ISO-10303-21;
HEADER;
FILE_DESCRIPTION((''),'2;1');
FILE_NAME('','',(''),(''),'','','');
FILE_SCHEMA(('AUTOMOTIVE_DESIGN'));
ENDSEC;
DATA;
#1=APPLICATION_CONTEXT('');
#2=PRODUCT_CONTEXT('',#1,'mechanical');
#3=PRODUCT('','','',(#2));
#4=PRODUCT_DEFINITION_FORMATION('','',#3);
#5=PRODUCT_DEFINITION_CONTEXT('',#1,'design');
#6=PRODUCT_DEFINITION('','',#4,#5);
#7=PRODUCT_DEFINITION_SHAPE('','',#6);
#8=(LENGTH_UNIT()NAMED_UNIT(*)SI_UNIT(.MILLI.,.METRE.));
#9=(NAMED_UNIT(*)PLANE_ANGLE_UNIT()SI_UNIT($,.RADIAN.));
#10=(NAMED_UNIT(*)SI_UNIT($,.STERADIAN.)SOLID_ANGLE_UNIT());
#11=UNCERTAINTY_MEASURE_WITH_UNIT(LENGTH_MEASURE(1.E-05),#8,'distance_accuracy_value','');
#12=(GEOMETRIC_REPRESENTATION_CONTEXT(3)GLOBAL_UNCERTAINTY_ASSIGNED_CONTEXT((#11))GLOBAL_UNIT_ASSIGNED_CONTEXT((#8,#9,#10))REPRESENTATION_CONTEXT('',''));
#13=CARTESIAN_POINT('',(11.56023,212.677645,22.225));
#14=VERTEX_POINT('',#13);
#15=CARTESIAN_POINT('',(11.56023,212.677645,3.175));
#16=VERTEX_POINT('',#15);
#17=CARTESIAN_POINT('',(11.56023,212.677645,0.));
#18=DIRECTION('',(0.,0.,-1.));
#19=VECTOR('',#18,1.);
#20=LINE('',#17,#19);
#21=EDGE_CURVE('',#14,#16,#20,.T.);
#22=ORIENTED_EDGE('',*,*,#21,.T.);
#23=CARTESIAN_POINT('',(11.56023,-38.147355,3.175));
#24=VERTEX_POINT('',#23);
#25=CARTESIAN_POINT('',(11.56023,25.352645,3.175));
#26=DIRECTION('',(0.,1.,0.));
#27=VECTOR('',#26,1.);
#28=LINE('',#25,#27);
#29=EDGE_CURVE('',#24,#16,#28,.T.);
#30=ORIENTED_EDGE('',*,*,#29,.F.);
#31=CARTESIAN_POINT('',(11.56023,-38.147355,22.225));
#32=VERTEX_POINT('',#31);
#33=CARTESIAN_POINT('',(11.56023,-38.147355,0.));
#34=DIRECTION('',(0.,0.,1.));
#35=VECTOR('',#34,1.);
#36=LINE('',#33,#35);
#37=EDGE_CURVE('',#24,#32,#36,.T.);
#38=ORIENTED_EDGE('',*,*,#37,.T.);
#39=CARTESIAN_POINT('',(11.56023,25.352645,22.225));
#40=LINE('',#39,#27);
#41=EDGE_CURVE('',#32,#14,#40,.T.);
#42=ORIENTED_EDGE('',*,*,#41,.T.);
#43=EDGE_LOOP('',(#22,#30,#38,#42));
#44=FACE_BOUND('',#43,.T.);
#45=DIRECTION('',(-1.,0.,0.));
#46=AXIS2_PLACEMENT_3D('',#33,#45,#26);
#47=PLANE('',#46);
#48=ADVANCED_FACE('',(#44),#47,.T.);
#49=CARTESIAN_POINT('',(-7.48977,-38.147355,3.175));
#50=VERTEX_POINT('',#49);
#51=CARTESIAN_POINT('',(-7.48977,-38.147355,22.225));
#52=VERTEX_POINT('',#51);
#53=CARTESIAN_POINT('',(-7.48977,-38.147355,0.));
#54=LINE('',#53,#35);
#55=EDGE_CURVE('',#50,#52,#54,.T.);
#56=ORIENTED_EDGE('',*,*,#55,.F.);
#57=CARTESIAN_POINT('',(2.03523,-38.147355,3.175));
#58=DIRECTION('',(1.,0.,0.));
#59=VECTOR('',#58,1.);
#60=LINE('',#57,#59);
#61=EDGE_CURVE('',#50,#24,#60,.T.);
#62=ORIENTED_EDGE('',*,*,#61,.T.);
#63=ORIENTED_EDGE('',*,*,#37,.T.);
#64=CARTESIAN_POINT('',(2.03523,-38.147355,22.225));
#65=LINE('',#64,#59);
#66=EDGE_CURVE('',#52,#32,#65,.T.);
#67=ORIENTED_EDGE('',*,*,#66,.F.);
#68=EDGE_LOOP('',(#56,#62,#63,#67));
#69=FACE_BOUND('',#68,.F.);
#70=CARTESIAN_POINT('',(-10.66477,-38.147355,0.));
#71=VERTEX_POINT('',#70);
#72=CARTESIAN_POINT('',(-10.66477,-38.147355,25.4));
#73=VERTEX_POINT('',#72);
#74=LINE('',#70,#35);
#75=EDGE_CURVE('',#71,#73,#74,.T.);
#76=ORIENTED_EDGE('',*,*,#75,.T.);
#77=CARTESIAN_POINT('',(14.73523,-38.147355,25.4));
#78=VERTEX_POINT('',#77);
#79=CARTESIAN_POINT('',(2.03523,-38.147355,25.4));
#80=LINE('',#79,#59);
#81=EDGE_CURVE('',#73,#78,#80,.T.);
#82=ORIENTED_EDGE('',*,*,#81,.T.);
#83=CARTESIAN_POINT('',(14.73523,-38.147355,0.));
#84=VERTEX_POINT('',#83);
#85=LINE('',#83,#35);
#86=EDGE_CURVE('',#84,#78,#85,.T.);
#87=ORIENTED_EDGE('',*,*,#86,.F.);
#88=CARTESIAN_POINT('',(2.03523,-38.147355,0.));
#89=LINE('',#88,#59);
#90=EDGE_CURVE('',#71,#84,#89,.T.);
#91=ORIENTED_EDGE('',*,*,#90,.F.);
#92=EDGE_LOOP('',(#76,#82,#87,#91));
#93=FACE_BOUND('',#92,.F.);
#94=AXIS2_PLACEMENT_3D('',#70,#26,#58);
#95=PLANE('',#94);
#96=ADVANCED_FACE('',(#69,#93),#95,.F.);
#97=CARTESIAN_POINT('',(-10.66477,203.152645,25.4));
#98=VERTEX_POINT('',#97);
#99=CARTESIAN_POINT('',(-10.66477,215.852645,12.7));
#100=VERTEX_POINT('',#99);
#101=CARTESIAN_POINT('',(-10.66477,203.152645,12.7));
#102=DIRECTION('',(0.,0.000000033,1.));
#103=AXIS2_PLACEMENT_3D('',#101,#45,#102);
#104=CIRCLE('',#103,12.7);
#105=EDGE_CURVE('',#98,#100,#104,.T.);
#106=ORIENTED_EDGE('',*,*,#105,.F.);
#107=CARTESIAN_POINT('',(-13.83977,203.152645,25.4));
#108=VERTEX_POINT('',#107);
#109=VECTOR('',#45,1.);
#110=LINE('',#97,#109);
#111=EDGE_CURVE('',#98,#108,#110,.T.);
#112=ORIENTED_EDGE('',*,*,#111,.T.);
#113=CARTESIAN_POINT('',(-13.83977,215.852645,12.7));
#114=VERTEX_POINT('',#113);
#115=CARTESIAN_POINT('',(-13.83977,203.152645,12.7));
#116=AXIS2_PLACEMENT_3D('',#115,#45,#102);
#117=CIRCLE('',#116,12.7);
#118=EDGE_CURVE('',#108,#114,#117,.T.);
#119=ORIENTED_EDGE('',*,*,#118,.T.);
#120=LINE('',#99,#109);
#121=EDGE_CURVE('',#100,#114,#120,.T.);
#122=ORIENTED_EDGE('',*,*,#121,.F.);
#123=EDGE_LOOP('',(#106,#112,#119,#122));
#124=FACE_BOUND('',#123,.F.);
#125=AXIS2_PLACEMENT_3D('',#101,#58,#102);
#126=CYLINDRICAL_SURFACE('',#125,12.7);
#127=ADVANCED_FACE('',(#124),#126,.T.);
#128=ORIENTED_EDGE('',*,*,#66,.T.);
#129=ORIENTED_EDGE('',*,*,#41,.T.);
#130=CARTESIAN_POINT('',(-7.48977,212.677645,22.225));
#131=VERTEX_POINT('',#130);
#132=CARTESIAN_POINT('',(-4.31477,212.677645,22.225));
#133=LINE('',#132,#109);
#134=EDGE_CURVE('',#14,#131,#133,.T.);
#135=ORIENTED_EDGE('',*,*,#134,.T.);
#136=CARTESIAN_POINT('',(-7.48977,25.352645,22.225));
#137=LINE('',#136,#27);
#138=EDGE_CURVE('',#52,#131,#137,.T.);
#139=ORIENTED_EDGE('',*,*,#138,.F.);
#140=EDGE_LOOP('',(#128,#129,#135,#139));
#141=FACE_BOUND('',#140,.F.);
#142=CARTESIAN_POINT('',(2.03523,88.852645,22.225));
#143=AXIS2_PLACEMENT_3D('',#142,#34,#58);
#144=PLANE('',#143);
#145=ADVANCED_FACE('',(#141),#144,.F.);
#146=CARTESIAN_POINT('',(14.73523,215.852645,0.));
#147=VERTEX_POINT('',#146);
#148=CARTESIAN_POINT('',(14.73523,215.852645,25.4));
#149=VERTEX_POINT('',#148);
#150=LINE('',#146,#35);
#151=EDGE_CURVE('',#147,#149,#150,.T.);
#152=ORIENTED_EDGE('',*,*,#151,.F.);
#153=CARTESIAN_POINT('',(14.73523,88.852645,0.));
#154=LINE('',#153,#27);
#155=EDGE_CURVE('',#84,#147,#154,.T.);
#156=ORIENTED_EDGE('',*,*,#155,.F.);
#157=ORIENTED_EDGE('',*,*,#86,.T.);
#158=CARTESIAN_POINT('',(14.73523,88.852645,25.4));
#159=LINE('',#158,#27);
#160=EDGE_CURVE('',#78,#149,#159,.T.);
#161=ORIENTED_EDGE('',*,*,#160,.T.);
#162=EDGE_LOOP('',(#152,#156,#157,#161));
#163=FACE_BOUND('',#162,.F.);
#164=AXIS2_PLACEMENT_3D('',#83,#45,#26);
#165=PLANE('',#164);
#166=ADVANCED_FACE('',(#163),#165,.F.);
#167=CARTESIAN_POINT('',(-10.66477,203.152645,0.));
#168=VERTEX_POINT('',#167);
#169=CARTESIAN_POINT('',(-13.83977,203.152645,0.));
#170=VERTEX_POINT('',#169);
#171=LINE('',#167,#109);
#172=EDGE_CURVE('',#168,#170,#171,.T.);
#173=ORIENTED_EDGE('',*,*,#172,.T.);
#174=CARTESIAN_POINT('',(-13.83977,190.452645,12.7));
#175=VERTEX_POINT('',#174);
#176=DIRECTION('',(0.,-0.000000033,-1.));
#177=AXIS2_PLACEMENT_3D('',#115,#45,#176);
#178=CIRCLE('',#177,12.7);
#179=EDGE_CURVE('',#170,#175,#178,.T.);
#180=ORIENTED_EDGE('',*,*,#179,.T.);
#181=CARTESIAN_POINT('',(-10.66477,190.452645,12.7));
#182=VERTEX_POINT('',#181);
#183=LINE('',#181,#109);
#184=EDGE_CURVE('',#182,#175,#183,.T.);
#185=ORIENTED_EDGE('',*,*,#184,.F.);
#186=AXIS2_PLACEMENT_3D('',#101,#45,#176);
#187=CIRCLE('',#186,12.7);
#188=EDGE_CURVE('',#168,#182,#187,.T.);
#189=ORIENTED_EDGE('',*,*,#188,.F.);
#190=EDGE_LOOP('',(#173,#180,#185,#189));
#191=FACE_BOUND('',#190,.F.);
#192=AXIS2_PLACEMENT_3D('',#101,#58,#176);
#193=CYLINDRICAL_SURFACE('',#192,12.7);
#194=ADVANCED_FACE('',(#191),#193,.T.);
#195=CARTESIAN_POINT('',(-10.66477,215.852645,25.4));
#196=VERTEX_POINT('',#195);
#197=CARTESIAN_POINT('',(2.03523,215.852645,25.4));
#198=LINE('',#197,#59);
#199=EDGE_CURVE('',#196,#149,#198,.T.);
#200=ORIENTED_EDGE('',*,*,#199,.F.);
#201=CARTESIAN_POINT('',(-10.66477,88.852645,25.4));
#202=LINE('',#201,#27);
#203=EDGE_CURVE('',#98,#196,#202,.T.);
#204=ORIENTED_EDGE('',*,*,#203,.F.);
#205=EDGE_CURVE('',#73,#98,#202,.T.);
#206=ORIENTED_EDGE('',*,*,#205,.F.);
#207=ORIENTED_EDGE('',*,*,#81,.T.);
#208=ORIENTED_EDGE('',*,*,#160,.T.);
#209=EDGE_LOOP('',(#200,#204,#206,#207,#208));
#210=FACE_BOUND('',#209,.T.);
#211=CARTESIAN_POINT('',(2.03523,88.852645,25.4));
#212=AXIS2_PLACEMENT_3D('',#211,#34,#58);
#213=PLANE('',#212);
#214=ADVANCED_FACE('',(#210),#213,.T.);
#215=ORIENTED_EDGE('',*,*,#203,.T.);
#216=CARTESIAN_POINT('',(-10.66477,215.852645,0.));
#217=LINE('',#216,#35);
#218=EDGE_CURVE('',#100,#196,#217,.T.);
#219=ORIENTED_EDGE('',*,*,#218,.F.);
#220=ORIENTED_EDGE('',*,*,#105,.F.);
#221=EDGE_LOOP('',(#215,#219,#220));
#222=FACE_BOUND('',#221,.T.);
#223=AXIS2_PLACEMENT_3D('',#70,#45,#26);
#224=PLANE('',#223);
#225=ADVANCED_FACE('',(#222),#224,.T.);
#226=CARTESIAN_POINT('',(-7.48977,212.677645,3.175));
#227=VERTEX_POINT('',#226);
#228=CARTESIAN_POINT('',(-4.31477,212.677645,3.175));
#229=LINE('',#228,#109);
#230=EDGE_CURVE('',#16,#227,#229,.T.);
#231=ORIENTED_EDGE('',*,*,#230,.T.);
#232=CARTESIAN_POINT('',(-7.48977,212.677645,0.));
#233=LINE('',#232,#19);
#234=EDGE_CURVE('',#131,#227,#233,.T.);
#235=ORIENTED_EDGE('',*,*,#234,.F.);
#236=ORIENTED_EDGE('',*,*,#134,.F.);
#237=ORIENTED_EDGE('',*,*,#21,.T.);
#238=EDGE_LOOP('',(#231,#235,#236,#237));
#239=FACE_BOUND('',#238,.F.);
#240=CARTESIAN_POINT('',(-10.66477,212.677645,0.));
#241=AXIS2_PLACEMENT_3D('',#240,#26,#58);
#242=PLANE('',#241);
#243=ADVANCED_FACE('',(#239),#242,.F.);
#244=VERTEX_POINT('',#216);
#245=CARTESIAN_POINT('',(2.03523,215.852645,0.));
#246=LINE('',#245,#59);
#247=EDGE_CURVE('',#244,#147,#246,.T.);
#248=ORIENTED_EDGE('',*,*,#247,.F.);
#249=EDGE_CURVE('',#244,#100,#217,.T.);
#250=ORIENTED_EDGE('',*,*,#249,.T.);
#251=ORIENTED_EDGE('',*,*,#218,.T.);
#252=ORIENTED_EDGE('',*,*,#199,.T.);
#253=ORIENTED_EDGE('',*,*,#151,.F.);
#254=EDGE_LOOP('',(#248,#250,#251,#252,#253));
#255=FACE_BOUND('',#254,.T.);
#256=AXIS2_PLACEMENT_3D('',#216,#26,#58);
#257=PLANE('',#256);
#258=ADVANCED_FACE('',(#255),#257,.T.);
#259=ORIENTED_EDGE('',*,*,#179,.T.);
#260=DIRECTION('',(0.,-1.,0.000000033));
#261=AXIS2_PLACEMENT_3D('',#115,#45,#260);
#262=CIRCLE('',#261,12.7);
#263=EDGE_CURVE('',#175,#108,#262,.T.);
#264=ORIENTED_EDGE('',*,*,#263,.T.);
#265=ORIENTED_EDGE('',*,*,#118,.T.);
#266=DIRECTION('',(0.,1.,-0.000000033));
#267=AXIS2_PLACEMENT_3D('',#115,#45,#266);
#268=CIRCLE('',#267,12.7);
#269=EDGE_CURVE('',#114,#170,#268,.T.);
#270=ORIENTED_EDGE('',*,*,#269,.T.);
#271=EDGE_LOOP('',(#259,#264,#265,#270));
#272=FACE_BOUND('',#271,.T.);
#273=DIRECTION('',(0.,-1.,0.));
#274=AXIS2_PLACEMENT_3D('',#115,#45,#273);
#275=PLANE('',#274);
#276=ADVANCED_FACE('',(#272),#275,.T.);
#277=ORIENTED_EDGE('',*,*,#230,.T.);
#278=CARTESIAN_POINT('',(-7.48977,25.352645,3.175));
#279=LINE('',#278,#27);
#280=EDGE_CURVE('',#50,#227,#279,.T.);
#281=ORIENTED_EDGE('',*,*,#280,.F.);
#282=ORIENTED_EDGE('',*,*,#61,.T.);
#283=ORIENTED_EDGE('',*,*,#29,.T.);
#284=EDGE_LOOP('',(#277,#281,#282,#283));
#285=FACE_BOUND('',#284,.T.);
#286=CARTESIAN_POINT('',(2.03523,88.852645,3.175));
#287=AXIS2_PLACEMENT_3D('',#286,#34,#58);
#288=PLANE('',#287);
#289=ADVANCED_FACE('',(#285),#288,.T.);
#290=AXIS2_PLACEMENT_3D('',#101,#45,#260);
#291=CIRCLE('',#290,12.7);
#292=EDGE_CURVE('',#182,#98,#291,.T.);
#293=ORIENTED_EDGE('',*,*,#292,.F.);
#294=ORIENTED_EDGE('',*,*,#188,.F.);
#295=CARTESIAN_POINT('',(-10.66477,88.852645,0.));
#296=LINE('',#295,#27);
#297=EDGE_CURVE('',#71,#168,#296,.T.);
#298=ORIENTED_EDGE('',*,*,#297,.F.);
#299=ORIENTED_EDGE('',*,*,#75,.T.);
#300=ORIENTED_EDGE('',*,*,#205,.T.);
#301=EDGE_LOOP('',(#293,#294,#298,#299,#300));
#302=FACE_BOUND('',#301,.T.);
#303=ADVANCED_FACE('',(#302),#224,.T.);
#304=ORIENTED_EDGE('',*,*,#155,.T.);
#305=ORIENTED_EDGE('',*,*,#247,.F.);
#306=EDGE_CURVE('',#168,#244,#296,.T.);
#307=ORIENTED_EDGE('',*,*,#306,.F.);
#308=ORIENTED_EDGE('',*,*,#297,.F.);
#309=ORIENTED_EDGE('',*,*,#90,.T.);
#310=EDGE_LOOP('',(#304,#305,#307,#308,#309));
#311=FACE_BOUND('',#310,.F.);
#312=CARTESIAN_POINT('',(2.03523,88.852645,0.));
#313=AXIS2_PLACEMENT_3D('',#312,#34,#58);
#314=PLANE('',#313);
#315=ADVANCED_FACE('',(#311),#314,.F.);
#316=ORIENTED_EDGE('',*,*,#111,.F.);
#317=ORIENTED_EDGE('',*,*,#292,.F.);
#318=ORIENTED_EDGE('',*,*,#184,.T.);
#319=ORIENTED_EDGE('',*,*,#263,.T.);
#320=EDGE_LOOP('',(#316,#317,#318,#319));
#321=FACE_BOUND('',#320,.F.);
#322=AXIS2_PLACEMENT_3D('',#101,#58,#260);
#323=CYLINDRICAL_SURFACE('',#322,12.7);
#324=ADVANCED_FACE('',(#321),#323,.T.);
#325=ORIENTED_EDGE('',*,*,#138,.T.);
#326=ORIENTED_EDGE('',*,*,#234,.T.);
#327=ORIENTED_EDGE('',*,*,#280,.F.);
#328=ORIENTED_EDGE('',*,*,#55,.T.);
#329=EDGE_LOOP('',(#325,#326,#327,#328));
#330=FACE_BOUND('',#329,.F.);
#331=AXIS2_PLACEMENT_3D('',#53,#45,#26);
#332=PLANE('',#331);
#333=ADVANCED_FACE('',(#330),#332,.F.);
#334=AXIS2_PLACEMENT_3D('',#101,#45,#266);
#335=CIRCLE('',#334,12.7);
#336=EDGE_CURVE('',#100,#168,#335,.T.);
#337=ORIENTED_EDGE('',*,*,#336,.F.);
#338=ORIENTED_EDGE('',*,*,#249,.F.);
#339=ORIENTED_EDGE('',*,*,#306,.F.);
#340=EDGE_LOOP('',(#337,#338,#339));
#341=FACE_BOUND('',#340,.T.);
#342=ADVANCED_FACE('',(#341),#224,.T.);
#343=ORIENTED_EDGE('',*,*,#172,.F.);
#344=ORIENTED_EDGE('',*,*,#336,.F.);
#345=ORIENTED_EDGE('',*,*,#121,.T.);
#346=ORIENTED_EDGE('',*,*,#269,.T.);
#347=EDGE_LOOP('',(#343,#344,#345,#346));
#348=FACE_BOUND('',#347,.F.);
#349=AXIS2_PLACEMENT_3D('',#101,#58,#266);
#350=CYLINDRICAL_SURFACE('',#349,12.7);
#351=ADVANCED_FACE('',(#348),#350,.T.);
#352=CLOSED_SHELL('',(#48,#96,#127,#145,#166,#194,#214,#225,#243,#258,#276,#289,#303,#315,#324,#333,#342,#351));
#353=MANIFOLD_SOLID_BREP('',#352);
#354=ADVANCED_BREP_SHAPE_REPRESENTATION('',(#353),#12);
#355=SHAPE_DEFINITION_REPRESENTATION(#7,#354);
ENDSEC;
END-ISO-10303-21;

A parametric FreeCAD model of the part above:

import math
import FreeCAD as App
import Part
import Sketcher
Q = App.Units.Quantity


def faces_at(feature, points):
    """Names of the faces that lie closest to the given points."""
    faces = feature.Shape.Faces
    near = lambda p: min(range(len(faces)), key=lambda i: faces[i].distToShape(Part.Vertex(*p))[0])
    return sorted({f"Face{near(p) + 1}" for p in points})


def add_polygon(sketch, points):
    """Adds a closed chain of lines whose ends are joined by coincident constraints."""
    first, n = sketch.GeometryCount, len(points)
    for a, b in zip(points, points[1:] + points[:1]):
        sketch.addGeometry(Part.LineSegment(App.Vector(*a, 0), App.Vector(*b, 0)), False)
    for i in range(n):
        sketch.addConstraint(Sketcher.Constraint("Coincident", first + i, 2, first + (i + 1) % n, 1))

doc = App.newDocument("Part")
body = doc.addObject("PartDesign::Body", "Body")

# Sketch on XY plane
sketch1 = body.newObject("Sketcher::SketchObject", "Sketch")
sketch1.AttachmentSupport = (doc.getObject("XY_Plane"), [""])
sketch1.MapMode = "FlatFace"
add_polygon(sketch1, [(-11, 216), (-11, -38), (15, -38), (15, 216)])  # lines 0-3
sketch1.addConstraint([
    Sketcher.Constraint("Vertical", 0),
    Sketcher.Constraint("Horizontal", 1),
    Sketcher.Constraint("Vertical", 2),
    Sketcher.Constraint("Horizontal", 3),
    Sketcher.Constraint("DistanceX", 1, 1, 1, 2, Q("1 in")),
    Sketcher.Constraint("DistanceY", 0, 2, 0, 1, Q("10 in")),
    Sketcher.Constraint("DistanceX", 0, 2, -1, 1, 10.66477),
    Sketcher.Constraint("DistanceY", 0, 2, -1, 1, 38.147355),
])
pad1 = body.newObject("PartDesign::Pad", "Pad")
pad1.Profile = sketch1
pad1.Length = Q("1 in")
doc.recompute()

thickness = body.newObject("PartDesign::Thickness", "Thickness")
thickness.Base = (pad1, faces_at(pad1, [(2.035, -38.147, 12.7)]))
thickness.Value = Q("0.125 in")
thickness.Reversed = True
thickness.Join = "Arc"

# Sketch on YZ plane
sketch2 = body.newObject("Sketcher::SketchObject", "Sketch001")
sketch2.AttachmentSupport = (doc.getObject("YZ_Plane"), [""])
sketch2.MapMode = "FlatFace"
sketch2.AttachmentOffset = App.Placement(App.Vector(0, 0, -10.66477), App.Rotation())
sketch2.addGeometry([
    Part.ArcOfCircle(Part.Circle(App.Vector(203, 13, 0), App.Vector(0, 0, 1), 13), math.radians(-180), math.radians(-90)),
    Part.ArcOfCircle(Part.Circle(App.Vector(203, 13, 0), App.Vector(0, 0, 1), 13), math.radians(90), math.radians(180)),
    Part.ArcOfCircle(Part.Circle(App.Vector(203, 13, 0), App.Vector(0, 0, 1), 13), math.radians(0), math.radians(90)),
    Part.ArcOfCircle(Part.Circle(App.Vector(203, 13, 0), App.Vector(0, 0, 1), 13), math.radians(-90), math.radians(0)),
], False)
sketch2.addConstraint([
    Sketcher.Constraint("Tangent", 0, 1, 1, 2),
    Sketcher.Constraint("Tangent", 1, 1, 2, 2),
    Sketcher.Constraint("Tangent", 2, 1, 3, 2),
    Sketcher.Constraint("Tangent", 3, 1, 0, 2),
    Sketcher.Constraint("Equal", 0, 1),
    Sketcher.Constraint("PointOnObject", 3, 1, -1),
    Sketcher.Constraint("Horizontal", 3, 3, 0, 1),
    Sketcher.Constraint("Horizontal", 0, 1, 2, 1),
    Sketcher.Constraint("Vertical", 3, 3, 1, 1),
    Sketcher.Constraint("Vertical", 1, 1, 3, 1),
    Sketcher.Constraint("Radius", 0, Q("0.5 in")),
    Sketcher.Constraint("DistanceX", -1, 1, 0, 3, 203.152645),
])
pad2 = body.newObject("PartDesign::Pad", "Pad001")
pad2.Profile = sketch2
pad2.Length = Q("0.125 in")
pad2.Reversed = True

doc.recompute()
